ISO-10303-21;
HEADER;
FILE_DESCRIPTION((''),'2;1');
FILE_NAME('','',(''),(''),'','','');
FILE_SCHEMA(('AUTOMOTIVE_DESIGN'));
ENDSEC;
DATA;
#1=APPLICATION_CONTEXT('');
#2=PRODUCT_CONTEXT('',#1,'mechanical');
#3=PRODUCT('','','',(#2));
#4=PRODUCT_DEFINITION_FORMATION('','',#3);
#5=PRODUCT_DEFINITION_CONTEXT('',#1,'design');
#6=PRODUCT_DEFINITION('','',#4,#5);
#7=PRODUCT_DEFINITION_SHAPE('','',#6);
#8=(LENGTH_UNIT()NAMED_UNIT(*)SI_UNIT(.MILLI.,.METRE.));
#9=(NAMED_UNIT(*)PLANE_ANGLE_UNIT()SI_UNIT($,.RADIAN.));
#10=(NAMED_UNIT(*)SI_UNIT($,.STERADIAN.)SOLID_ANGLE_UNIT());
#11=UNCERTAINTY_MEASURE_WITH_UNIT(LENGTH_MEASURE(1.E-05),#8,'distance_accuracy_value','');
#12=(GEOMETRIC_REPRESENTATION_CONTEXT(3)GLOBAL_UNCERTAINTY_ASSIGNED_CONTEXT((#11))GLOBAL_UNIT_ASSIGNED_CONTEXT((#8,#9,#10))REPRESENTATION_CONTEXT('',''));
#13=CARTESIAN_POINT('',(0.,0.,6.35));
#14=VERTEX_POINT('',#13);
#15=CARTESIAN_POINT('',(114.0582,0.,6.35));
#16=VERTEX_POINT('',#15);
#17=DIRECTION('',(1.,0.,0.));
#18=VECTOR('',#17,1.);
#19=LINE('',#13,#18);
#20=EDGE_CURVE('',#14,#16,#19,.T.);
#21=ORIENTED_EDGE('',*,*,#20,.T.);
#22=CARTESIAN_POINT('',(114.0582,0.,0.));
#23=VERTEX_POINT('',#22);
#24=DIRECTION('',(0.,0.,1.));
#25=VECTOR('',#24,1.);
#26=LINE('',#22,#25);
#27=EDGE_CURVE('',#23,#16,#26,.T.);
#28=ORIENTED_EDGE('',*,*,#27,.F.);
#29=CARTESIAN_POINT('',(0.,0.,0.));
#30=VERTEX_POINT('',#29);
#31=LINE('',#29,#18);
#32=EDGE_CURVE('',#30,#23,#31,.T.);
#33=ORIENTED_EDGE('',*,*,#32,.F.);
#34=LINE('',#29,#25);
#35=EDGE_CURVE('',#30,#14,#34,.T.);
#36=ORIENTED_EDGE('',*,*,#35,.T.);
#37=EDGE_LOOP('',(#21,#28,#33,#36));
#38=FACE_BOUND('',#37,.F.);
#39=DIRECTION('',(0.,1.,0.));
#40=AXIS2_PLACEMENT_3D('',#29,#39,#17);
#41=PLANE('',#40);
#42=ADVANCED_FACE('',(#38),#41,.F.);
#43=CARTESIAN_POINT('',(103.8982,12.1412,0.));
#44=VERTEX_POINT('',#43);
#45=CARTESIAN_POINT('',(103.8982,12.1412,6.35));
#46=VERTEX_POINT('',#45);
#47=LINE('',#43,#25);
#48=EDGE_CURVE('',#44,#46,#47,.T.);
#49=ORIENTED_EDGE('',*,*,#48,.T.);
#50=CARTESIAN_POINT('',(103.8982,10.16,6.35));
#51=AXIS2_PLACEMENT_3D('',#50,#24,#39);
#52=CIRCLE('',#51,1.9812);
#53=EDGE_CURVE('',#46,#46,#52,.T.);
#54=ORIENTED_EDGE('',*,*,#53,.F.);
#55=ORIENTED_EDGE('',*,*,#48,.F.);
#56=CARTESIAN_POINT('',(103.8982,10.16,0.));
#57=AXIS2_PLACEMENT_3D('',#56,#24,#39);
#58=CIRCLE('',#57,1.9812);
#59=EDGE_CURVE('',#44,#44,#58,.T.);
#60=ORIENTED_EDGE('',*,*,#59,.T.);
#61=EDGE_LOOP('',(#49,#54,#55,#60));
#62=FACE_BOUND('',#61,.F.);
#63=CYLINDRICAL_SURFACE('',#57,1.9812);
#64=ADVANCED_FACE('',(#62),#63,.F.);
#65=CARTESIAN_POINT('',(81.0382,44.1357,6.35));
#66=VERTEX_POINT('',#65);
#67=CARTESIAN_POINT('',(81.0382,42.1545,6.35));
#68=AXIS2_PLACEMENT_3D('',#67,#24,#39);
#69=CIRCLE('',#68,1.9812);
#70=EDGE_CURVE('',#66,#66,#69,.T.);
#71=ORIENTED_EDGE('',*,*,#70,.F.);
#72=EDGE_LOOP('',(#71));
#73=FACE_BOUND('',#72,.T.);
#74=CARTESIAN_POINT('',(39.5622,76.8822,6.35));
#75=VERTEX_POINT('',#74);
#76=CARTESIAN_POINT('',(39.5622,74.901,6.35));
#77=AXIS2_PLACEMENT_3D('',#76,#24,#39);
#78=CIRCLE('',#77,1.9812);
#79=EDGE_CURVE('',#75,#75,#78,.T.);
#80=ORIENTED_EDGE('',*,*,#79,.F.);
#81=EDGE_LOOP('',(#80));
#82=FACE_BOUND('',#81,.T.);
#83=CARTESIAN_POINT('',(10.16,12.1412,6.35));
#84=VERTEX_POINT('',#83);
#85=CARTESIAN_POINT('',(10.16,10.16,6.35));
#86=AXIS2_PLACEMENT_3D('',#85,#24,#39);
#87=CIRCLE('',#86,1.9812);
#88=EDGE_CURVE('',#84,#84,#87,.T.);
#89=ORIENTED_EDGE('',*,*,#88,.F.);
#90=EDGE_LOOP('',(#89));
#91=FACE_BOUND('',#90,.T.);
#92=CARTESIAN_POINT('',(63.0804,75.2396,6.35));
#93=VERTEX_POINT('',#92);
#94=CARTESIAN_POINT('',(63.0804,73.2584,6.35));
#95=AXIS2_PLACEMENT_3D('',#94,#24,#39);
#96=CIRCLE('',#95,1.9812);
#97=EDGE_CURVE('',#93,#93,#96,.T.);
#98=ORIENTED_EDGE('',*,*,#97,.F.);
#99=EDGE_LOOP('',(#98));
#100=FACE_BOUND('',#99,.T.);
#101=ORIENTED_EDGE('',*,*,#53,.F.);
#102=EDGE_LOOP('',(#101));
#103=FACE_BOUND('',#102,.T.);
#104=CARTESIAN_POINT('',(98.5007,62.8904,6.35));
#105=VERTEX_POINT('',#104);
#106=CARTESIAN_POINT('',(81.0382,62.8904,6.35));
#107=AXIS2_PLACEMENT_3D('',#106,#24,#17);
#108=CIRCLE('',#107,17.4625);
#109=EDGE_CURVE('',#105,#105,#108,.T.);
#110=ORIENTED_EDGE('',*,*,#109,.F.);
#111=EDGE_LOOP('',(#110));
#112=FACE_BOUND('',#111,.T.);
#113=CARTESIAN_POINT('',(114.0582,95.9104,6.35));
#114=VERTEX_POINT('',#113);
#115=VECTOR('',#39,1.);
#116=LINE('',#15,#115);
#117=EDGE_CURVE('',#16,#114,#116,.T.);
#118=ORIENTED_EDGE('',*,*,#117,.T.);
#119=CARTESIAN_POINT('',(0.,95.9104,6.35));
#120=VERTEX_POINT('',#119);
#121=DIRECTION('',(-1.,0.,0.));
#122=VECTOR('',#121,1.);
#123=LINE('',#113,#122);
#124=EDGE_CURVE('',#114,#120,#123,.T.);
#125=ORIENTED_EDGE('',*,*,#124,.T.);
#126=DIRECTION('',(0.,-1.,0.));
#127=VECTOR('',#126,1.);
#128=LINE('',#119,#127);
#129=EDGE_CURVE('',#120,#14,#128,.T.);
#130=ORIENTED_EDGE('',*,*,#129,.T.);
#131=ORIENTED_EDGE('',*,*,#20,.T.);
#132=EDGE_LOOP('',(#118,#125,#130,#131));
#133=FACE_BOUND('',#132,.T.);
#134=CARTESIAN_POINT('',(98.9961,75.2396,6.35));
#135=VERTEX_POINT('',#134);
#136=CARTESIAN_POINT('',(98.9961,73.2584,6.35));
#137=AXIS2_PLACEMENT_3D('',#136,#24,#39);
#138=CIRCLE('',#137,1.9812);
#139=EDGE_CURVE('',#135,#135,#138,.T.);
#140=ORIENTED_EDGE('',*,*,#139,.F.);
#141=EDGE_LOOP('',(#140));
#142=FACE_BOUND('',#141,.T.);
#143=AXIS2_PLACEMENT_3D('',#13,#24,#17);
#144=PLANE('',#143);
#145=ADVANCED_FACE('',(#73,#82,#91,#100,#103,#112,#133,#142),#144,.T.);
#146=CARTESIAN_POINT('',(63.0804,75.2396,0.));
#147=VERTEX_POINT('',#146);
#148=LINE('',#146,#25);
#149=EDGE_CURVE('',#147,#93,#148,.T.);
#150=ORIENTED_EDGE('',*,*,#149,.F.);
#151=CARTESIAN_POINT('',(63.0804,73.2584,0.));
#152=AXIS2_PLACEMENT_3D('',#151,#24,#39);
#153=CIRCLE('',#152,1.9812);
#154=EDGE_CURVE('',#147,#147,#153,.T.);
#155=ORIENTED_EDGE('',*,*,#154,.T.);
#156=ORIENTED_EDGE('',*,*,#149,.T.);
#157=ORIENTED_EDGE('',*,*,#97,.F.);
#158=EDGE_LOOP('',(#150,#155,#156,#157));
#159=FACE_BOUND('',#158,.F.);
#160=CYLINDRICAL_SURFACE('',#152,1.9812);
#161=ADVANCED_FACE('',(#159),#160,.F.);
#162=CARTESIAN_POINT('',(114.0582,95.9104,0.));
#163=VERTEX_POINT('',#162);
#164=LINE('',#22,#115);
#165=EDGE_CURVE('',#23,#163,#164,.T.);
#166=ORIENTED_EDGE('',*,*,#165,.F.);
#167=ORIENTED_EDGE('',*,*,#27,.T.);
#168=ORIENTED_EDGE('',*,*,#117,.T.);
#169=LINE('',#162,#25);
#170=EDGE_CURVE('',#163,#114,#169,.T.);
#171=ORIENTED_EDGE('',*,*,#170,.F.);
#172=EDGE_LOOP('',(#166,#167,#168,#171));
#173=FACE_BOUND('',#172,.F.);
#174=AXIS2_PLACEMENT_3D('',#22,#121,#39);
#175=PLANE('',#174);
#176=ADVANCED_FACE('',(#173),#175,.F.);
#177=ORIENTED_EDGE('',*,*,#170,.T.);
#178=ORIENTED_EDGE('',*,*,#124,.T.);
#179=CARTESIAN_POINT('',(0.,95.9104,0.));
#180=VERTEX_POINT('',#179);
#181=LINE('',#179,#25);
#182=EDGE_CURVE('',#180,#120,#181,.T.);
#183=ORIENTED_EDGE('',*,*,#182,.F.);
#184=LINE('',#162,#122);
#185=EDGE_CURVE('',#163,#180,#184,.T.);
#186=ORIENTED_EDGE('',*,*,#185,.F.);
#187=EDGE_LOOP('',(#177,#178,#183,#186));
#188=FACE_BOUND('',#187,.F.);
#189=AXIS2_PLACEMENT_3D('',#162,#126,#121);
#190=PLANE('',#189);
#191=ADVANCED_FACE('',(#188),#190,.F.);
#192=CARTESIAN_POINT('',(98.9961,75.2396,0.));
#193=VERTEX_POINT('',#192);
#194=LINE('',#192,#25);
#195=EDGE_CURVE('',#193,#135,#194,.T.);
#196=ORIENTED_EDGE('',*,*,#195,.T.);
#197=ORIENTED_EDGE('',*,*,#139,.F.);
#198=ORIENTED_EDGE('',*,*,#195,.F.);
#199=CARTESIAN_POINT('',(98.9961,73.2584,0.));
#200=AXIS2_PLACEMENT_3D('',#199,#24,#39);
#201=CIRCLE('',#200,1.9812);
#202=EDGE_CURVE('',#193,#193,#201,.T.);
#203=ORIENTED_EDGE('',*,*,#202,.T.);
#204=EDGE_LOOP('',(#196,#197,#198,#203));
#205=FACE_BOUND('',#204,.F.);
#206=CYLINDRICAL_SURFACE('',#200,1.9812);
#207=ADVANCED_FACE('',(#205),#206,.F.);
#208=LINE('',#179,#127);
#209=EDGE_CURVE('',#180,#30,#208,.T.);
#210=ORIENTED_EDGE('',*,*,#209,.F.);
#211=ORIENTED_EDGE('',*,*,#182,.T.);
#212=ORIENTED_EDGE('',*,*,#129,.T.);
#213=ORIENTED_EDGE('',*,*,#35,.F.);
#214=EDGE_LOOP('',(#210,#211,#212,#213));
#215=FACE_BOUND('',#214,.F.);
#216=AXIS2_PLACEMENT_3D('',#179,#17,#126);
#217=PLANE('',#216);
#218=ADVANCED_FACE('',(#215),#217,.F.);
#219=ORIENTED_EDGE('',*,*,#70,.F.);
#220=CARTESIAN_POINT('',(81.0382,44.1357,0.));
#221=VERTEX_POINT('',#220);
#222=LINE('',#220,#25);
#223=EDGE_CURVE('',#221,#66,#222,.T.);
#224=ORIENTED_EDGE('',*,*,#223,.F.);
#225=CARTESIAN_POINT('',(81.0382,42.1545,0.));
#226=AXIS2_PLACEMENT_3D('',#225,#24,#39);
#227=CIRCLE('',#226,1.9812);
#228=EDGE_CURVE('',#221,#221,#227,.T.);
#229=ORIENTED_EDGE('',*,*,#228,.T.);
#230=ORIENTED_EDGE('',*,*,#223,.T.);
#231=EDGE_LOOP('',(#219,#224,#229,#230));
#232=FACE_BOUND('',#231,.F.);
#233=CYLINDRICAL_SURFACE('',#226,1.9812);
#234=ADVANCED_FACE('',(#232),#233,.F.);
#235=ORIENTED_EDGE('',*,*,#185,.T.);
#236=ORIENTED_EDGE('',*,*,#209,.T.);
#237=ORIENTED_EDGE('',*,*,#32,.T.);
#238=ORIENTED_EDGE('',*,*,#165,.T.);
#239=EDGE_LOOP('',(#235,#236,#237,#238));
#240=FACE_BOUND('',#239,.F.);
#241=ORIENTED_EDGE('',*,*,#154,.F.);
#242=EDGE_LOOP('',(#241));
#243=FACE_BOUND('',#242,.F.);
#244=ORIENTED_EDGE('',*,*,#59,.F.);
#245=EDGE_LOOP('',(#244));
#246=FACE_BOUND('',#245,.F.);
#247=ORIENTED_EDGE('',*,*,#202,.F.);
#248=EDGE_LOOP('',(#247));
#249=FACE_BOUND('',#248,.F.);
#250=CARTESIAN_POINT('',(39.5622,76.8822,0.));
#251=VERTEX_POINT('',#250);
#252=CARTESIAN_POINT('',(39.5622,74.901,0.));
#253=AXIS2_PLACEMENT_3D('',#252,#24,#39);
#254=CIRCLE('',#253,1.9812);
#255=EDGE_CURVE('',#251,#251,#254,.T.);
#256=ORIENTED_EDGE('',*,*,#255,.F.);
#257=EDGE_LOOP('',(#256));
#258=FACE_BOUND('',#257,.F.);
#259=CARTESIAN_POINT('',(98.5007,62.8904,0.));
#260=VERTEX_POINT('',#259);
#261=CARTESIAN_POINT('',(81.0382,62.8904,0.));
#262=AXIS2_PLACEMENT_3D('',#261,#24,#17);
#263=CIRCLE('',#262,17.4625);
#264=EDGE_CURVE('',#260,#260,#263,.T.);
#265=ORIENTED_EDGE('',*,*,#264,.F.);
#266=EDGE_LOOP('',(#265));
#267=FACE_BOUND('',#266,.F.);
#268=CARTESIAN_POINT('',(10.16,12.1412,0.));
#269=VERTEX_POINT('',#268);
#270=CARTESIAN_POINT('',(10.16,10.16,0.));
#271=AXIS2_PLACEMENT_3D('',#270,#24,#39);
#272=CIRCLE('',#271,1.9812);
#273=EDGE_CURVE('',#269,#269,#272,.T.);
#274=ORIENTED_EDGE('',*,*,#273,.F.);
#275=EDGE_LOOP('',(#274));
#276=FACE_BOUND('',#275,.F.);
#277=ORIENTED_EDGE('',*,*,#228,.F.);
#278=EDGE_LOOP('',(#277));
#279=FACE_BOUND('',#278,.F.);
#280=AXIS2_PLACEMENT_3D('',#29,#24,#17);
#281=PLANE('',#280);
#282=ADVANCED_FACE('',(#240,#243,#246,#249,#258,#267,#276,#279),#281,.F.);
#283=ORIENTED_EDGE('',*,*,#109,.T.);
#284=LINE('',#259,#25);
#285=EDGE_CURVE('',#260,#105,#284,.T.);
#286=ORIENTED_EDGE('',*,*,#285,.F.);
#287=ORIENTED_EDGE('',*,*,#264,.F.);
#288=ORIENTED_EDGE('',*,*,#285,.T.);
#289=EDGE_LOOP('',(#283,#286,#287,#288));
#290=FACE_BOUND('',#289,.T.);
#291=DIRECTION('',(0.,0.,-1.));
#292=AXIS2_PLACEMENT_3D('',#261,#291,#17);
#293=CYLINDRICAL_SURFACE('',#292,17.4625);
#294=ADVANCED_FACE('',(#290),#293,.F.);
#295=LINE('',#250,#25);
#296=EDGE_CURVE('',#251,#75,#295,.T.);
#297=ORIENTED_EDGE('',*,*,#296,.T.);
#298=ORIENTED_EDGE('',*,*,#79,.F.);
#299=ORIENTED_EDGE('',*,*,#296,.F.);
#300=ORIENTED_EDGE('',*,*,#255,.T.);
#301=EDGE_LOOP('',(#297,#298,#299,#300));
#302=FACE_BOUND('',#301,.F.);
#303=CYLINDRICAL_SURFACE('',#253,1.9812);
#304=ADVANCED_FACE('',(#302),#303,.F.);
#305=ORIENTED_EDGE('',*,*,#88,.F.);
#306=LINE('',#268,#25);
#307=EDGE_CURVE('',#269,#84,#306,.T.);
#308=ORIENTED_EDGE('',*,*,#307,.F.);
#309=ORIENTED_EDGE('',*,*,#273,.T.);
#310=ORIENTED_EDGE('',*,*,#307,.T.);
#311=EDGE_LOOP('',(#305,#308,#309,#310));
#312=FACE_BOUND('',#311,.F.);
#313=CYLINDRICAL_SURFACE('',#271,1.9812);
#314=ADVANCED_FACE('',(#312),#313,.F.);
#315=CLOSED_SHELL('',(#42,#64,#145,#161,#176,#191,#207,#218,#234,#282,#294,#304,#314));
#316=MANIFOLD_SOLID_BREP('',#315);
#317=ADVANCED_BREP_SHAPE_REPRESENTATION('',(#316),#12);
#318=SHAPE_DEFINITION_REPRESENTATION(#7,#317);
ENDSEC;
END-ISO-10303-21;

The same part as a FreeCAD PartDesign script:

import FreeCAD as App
import Part
import Sketcher
from FreeCAD import Vector
Q = App.Units.Quantity


def add_polygon(sketch, points):
    """Adds a closed chain of lines whose ends are joined by coincident constraints."""
    first, n = sketch.GeometryCount, len(points)
    for a, b in zip(points, points[1:] + points[:1]):
        sketch.addGeometry(Part.LineSegment(App.Vector(*a, 0), App.Vector(*b, 0)), False)
    for i in range(n):
        sketch.addConstraint(Sketcher.Constraint("Coincident", first + i, 2, first + (i + 1) % n, 1))

doc = App.newDocument("Part")
body = doc.addObject("PartDesign::Body", "Body")

# Sketch on XY plane
sketch1 = body.newObject("Sketcher::SketchObject", "Sketch")
sketch1.AttachmentSupport = (doc.getObject("XY_Plane"), [""])
sketch1.MapMode = "FlatFace"
add_polygon(sketch1, [(0, 96), (0, 0), (114, 0), (114, 96)])  # lines 0-3
sketch1.addGeometry(Part.Circle(Vector(81, 63, 0), Vector(0, 0, 1), 17), False)  # 4
sketch1.addConstraint([
    Sketcher.Constraint("Vertical", 0),
    Sketcher.Constraint("Horizontal", 1),
    Sketcher.Constraint("Vertical", 2),
    Sketcher.Constraint("Horizontal", 3),
    Sketcher.Constraint("Coincident", 0, 2, -1, 1),
    Sketcher.Constraint("Diameter", 4, Q("1.375 in")),
    Sketcher.Constraint("DistanceX", 4, 3, 1, 2, Q("1.3 in")),
    Sketcher.Constraint("DistanceY", 4, 3, 2, 2, Q("1.3 in")),
    Sketcher.Constraint("DistanceY", 0, 2, 0, 1, Q("3.776 in")),
    Sketcher.Constraint("DistanceX", 1, 1, 1, 2, Q("114.0582 mm")),
])
pad1 = body.newObject("PartDesign::Pad", "Pad")
pad1.Profile = sketch1
pad1.Length = Q("0.25 in")

# Sketch on XY plane
sketch2 = body.newObject("Sketcher::SketchObject", "Sketch001")
sketch2.AttachmentSupport = (doc.getObject("XY_Plane"), [""])
sketch2.MapMode = "FlatFace"
sketch2.addGeometry([
    Part.Circle(Vector(81, 42.2, 0), Vector(0, 0, 1), 2),
    Part.Circle(Vector(99, 73.3, 0), Vector(0, 0, 1), 2),
    Part.Circle(Vector(63.1, 73.3, 0), Vector(0, 0, 1), 2),
], False)
sketch2.addConstraint([
    Sketcher.Constraint("Equal", 0, 1),
    Sketcher.Constraint("Equal", 1, 2),
    Sketcher.Constraint("Horizontal", 1, 3, 2, 3),
    Sketcher.Constraint("Diameter", 0, Q("0.156 in")),
    Sketcher.Constraint("DistanceX", 0, 3, 1, 3, Q("0.707 in")),
    Sketcher.Constraint("DistanceX", 2, 3, 0, 3, Q("0.707 in")),
    Sketcher.Constraint("DistanceY", -1, 1, 1, 3, Q("2.8842 in")),
    Sketcher.Constraint("DistanceX", -1, 1, 0, 3, Q("81.0382 mm")),
    Sketcher.Constraint("DistanceY", -1, 1, 0, 3, Q("42.1545 mm")),
])
doc.recompute()
hole = body.newObject("PartDesign::Hole", "Hole")
hole.Profile = sketch2
hole.ThreadType = "None"
hole.Diameter = Q("0.156 in")
hole.DepthType = "ThroughAll"
hole.Reversed = True

# Sketch on XY plane
sketch3 = body.newObject("Sketcher::SketchObject", "Sketch002")
sketch3.AttachmentSupport = (doc.getObject("XY_Plane"), [""])
sketch3.MapMode = "FlatFace"
sketch3.addGeometry([
    Part.Circle(Vector(39.6, 74.9, 0), Vector(0, 0, 1), 2),
    Part.Circle(Vector(10.2, 10.2, 0), Vector(0, 0, 1), 2),
    Part.Circle(Vector(103.9, 10.2, 0), Vector(0, 0, 1), 2),
], False)
sketch3.addConstraint([
    Sketcher.Constraint("Equal", 0, 1),
    Sketcher.Constraint("Equal", 1, 2),
    Sketcher.Constraint("Horizontal", 1, 3, 2, 3),
    Sketcher.Constraint("Diameter", 0, Q("0.156 in")),
    Sketcher.Constraint("DistanceX", -1, 1, 1, 3, Q("0.4 in")),
    Sketcher.Constraint("DistanceY", -1, 1, 1, 3, Q("0.4 in")),
    Sketcher.Constraint("DistanceX", -1, 1, 0, 3, Q("39.5622 mm")),
    Sketcher.Constraint("DistanceY", -1, 1, 0, 3, Q("74.901 mm")),
    Sketcher.Constraint("DistanceX", -1, 1, 2, 3, Q("103.8982 mm")),
])
doc.recompute()
hole2 = body.newObject("PartDesign::Hole", "Hole001")
hole2.Profile = sketch3
hole2.ThreadType = "None"
hole2.Diameter = Q("0.156 in")
hole2.DepthType = "ThroughAll"
hole2.Reversed = True

doc.recompute()
